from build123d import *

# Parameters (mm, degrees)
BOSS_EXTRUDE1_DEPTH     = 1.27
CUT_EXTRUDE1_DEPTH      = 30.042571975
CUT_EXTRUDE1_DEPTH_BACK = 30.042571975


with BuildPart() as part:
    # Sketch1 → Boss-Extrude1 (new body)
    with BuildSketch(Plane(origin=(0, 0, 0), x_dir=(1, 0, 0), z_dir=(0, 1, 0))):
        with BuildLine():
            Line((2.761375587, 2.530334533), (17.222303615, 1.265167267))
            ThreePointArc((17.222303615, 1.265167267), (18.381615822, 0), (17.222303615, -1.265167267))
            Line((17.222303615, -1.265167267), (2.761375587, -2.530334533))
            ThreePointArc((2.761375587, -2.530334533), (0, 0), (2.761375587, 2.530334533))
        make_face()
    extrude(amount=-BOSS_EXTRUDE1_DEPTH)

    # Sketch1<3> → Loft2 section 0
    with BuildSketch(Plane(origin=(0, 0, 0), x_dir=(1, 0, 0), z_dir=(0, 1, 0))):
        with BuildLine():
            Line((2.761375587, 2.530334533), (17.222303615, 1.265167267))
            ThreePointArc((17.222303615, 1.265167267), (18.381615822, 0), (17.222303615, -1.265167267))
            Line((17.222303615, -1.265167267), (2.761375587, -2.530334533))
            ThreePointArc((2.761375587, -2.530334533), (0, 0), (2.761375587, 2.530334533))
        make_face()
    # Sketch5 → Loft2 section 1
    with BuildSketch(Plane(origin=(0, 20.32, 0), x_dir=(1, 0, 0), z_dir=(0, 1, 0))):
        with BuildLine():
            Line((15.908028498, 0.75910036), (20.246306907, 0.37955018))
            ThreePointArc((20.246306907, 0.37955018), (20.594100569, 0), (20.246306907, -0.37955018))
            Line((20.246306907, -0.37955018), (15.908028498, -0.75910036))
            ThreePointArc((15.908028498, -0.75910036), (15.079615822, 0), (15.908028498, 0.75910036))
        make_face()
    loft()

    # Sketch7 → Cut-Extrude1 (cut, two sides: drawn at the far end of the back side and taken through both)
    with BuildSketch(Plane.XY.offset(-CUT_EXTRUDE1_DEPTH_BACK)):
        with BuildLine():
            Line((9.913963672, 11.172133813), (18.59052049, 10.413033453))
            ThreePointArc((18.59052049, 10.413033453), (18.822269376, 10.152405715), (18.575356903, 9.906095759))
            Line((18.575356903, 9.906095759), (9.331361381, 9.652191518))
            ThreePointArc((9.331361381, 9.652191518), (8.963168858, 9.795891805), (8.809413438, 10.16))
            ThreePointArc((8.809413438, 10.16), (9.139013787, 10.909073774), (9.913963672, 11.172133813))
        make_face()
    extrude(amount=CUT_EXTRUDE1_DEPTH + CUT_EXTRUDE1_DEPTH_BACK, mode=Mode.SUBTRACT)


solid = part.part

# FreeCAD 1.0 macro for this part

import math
import FreeCAD as App
import Part
import Sketcher
from FreeCAD import Vector
Q = App.Units.Quantity

doc = App.newDocument("Part")
params = doc.addObject("Spreadsheet::Sheet", "Params")
for row, (alias, value) in enumerate([
    ("sketch1_radius", "0.1 in"),
    ("sketch1_radius2", "0.05 in"),
    ("pad1_length", "0.05 in"),
    ("sketch2_radius", "0.1 in"),
    ("sketch2_radius2", "0.05 in"),
    ("sketch3_radius", "0.03 in"),
    ("sketch3_radius2", "0.015 in"),
    ("sketch4_radius", "0.04 in"),
    ("sketch4_radius2", "0.02 in"),
    ("sketch4_radius3", "0.01 in"),
], start=1):
    params.set(f"A{row}", alias)
    params.set(f"B{row}", "=" + value)
    params.setAlias(f"B{row}", alias)

body = doc.addObject("PartDesign::Body", "Body")

# Sketch on XZ plane
sketch1 = body.newObject("Sketcher::SketchObject", "Sketch")
sketch1.AttachmentSupport = (doc.getObject("XZ_Plane"), [""])
sketch1.MapMode = "FlatFace"
sketch1.addGeometry(Part.LineSegment(Vector(17.2, -1.3, 0), Vector(2.8, -2.5, 0)), False)
sketch1.addGeometry(Part.ArcOfCircle(Part.Circle(Vector(2.5, 0, 0), Vector(0, 0, 1), 2.5), math.radians(85), math.radians(275)), False)
sketch1.addGeometry(Part.LineSegment(Vector(2.8, 2.5, 0), Vector(17.2, 1.3, 0)), False)
sketch1.addGeometry(Part.ArcOfCircle(Part.Circle(Vector(17.1, 0, 0), Vector(0, 0, 1), 1.3), math.radians(-85), math.radians(85)), False)
sketch1.addConstraint(Sketcher.Constraint("Tangent", 0, 2, 1, 2))
sketch1.addConstraint(Sketcher.Constraint("Tangent", 1, 1, 2, 1))
sketch1.addConstraint(Sketcher.Constraint("Tangent", 2, 2, 3, 2))
sketch1.addConstraint(Sketcher.Constraint("Tangent", 3, 1, 0, 1))
sketch1.addConstraint(Sketcher.Constraint("Symmetric", 0, 2, 1, 1, -1))
sketch1.addConstraint(Sketcher.Constraint("Radius", 1, Q("0.1 in")))
sketch1.addConstraint(Sketcher.Constraint("Radius", 3, Q("0.05 in")))
sketch1.addConstraint(Sketcher.Constraint("Angle", 0, Q("-175 deg")))
sketch1.addConstraint(Sketcher.Constraint("DistanceX", -1, 1, 1, 3, Q("0.1 in")))
sketch1.setExpression("Constraints[5]", "Params.sketch1_radius")
sketch1.setExpression("Constraints[6]", "Params.sketch1_radius2")
pad1 = body.newObject("PartDesign::Pad", "Pad")
pad1.Profile = sketch1
pad1.setExpression("Length", "Params.pad1_length")

# Sketch on XZ plane
sketch2 = body.newObject("Sketcher::SketchObject", "Sketch001")
sketch2.AttachmentSupport = (doc.getObject("XZ_Plane"), [""])
sketch2.MapMode = "FlatFace"
sketch2.addGeometry(Part.LineSegment(Vector(17.2, -1.3, 0), Vector(2.8, -2.5, 0)), False)
sketch2.addGeometry(Part.ArcOfCircle(Part.Circle(Vector(2.5, 0, 0), Vector(0, 0, 1), 2.5), math.radians(85), math.radians(275)), False)
sketch2.addGeometry(Part.LineSegment(Vector(2.8, 2.5, 0), Vector(17.2, 1.3, 0)), False)
sketch2.addGeometry(Part.ArcOfCircle(Part.Circle(Vector(17.1, 0, 0), Vector(0, 0, 1), 1.3), math.radians(-85), math.radians(85)), False)
sketch2.addConstraint(Sketcher.Constraint("Tangent", 0, 2, 1, 2))
sketch2.addConstraint(Sketcher.Constraint("Tangent", 1, 1, 2, 1))
sketch2.addConstraint(Sketcher.Constraint("Tangent", 2, 2, 3, 2))
sketch2.addConstraint(Sketcher.Constraint("Tangent", 3, 1, 0, 1))
sketch2.addConstraint(Sketcher.Constraint("Symmetric", 0, 2, 1, 1, -1))
sketch2.addConstraint(Sketcher.Constraint("Radius", 1, Q("0.1 in")))
sketch2.addConstraint(Sketcher.Constraint("Radius", 3, Q("0.05 in")))
sketch2.addConstraint(Sketcher.Constraint("Angle", 0, Q("-175 deg")))
sketch2.addConstraint(Sketcher.Constraint("DistanceX", -1, 1, 1, 3, Q("0.1 in")))
sketch2.setExpression("Constraints[5]", "Params.sketch2_radius")
sketch2.setExpression("Constraints[6]", "Params.sketch2_radius2")

# Sketch on XZ plane
sketch3 = body.newObject("Sketcher::SketchObject", "Sketch002")
sketch3.AttachmentSupport = (doc.getObject("XZ_Plane"), [""])
sketch3.MapMode = "FlatFace"
sketch3.AttachmentOffset = App.Placement(Vector(0, 0, -0.8 * 25.4), App.Rotation())
sketch3.addGeometry(Part.LineSegment(Vector(20.25, -0.38, 0), Vector(15.91, -0.76, 0)), False)
sketch3.addGeometry(Part.ArcOfCircle(Part.Circle(Vector(15.84, 0, 0), Vector(0, 0, 1), 0.76), math.radians(85), math.radians(275)), False)
sketch3.addGeometry(Part.LineSegment(Vector(15.91, 0.76, 0), Vector(20.25, 0.38, 0)), False)
sketch3.addGeometry(Part.ArcOfCircle(Part.Circle(Vector(20.21, 0, 0), Vector(0, 0, 1), 0.38), math.radians(-85), math.radians(85)), False)
sketch3.addConstraint(Sketcher.Constraint("Tangent", 0, 2, 1, 2))
sketch3.addConstraint(Sketcher.Constraint("Tangent", 1, 1, 2, 1))
sketch3.addConstraint(Sketcher.Constraint("Tangent", 2, 2, 3, 2))
sketch3.addConstraint(Sketcher.Constraint("Tangent", 3, 1, 0, 1))
sketch3.addConstraint(Sketcher.Constraint("Symmetric", 0, 2, 1, 1, -1))
sketch3.addConstraint(Sketcher.Constraint("Radius", 1, Q("0.03 in")))
sketch3.addConstraint(Sketcher.Constraint("Angle", 0, Q("-175 deg")))
sketch3.addConstraint(Sketcher.Constraint("Radius", 3, Q("0.015 in")))
sketch3.addConstraint(Sketcher.Constraint("DistanceX", -1, 1, 3, 3, 20.213101))
sketch3.setExpression("Constraints[5]", "Params.sketch3_radius")
sketch3.setExpression("Constraints[7]", "Params.sketch3_radius2")

additiveloft = body.newObject("PartDesign::AdditiveLoft", "AdditiveLoft")
additiveloft.Profile = sketch2
additiveloft.Sections = [sketch3]

# Sketch on XY plane
sketch4 = body.newObject("Sketcher::SketchObject", "Sketch003")
sketch4.AttachmentSupport = (doc.getObject("XY_Plane"), [""])
sketch4.MapMode = "FlatFace"
sketch4.addGeometry(Part.LineSegment(Vector(18.59, 10.41, 0), Vector(9.91, 11.17, 0)), False)
sketch4.addGeometry(Part.ArcOfCircle(Part.Circle(Vector(9.83, 10.16, 0), Vector(0, 0, 1), 1.02), math.radians(85), math.radians(180)), False)
sketch4.addGeometry(Part.ArcOfCircle(Part.Circle(Vector(9.32, 10.16, 0), Vector(0, 0, 1), 0.51), math.radians(180), math.radians(272)), False)
sketch4.addGeometry(Part.LineSegment(Vector(9.33, 9.65, 0), Vector(18.58, 9.91, 0)), False)
sketch4.addGeometry(Part.ArcOfCircle(Part.Circle(Vector(18.57, 10.16, 0), Vector(0, 0, 1), 0.25), math.radians(-88), math.radians(85)), False)
sketch4.addConstraint(Sketcher.Constraint("Tangent", 0, 2, 1, 1))
sketch4.addConstraint(Sketcher.Constraint("Tangent", 1, 2, 2, 1))
sketch4.addConstraint(Sketcher.Constraint("Tangent", 2, 2, 3, 1))
sketch4.addConstraint(Sketcher.Constraint("Tangent", 3, 2, 4, 1))
sketch4.addConstraint(Sketcher.Constraint("Tangent", 4, 2, 0, 1))
sketch4.addConstraint(Sketcher.Constraint("Horizontal", 1, 3, 2, 3))
sketch4.addConstraint(Sketcher.Constraint("Horizontal", 2, 3, 4, 3))
sketch4.addConstraint(Sketcher.Constraint("Radius", 1, Q("0.04 in")))
sketch4.addConstraint(Sketcher.Constraint("Radius", 2, Q("0.02 in")))
sketch4.addConstraint(Sketcher.Constraint("Radius", 4, Q("0.01 in")))
sketch4.addConstraint(Sketcher.Constraint("Angle", 0, Q("175 deg")))
sketch4.addConstraint(Sketcher.Constraint("DistanceY", -1, 1, 1, 3, Q("0.4 in")))
sketch4.addConstraint(Sketcher.Constraint("DistanceX", -1, 1, 2, 2, 9.331361))
sketch4.setExpression("Constraints[7]", "Params.sketch4_radius")
sketch4.setExpression("Constraints[8]", "Params.sketch4_radius2")
sketch4.setExpression("Constraints[9]", "Params.sketch4_radius3")
pocket1 = body.newObject("PartDesign::Pocket", "Pocket")
pocket1.Profile = sketch4
pocket1.Type = "ThroughAll"
pocket1.Midplane = True

doc.recompute()
